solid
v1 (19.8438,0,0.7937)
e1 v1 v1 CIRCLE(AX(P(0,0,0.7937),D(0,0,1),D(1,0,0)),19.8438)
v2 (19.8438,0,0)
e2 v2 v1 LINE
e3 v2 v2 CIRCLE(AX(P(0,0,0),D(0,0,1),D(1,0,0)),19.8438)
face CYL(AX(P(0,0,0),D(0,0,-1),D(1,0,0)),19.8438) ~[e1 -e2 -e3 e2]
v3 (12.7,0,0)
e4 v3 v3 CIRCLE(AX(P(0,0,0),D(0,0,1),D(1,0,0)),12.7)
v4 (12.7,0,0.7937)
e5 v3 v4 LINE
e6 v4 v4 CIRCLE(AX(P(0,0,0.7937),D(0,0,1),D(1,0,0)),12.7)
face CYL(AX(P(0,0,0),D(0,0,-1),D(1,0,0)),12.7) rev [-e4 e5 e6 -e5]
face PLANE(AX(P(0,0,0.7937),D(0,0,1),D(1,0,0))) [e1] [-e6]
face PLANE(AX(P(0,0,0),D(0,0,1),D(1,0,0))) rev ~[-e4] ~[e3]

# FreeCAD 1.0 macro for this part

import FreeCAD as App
import Part
import Sketcher

V = App.Vector
Q = App.Units.Quantity

doc = App.newDocument("Part")
params = doc.addObject("Spreadsheet::Sheet", "Params")
for row, (alias, value) in enumerate([
    ("sketch1_diameter", "1 in"),
    ("sketch1_diameter2", "1.5625 in"),
    ("pad1_length", "0.031248 in"),
], start=1):
    params.set(f"A{row}", alias)
    params.set(f"B{row}", "=" + value)
    params.setAlias(f"B{row}", alias)

body = doc.addObject("PartDesign::Body", "Body")

# Sketch on XY plane
sketch1 = body.newObject("Sketcher::SketchObject", "Sketch")
sketch1.AttachmentSupport = (doc.getObject("XY_Plane"), [""])
sketch1.MapMode = "FlatFace"
sketch1.addGeometry([
    Part.Circle(V(0, 0, 0), V(0, 0, 1), 19.8438),
    Part.Circle(V(0, 0, 0), V(0, 0, 1), 12.7),
], False)
sketch1.addConstraint([
    Sketcher.Constraint("Coincident", 0, 3, -1, 1),
    Sketcher.Constraint("Coincident", 1, 3, -1, 1),
    Sketcher.Constraint("Diameter", 1, Q("1 in")),
    Sketcher.Constraint("Diameter", 0, Q("1.5625 in")),
])
sketch1.setExpression("Constraints[2]", "Params.sketch1_diameter")
sketch1.setExpression("Constraints[3]", "Params.sketch1_diameter2")
pad1 = body.newObject("PartDesign::Pad", "Pad")
pad1.Profile = sketch1
pad1.setExpression("Length", "Params.pad1_length")

doc.recompute()
